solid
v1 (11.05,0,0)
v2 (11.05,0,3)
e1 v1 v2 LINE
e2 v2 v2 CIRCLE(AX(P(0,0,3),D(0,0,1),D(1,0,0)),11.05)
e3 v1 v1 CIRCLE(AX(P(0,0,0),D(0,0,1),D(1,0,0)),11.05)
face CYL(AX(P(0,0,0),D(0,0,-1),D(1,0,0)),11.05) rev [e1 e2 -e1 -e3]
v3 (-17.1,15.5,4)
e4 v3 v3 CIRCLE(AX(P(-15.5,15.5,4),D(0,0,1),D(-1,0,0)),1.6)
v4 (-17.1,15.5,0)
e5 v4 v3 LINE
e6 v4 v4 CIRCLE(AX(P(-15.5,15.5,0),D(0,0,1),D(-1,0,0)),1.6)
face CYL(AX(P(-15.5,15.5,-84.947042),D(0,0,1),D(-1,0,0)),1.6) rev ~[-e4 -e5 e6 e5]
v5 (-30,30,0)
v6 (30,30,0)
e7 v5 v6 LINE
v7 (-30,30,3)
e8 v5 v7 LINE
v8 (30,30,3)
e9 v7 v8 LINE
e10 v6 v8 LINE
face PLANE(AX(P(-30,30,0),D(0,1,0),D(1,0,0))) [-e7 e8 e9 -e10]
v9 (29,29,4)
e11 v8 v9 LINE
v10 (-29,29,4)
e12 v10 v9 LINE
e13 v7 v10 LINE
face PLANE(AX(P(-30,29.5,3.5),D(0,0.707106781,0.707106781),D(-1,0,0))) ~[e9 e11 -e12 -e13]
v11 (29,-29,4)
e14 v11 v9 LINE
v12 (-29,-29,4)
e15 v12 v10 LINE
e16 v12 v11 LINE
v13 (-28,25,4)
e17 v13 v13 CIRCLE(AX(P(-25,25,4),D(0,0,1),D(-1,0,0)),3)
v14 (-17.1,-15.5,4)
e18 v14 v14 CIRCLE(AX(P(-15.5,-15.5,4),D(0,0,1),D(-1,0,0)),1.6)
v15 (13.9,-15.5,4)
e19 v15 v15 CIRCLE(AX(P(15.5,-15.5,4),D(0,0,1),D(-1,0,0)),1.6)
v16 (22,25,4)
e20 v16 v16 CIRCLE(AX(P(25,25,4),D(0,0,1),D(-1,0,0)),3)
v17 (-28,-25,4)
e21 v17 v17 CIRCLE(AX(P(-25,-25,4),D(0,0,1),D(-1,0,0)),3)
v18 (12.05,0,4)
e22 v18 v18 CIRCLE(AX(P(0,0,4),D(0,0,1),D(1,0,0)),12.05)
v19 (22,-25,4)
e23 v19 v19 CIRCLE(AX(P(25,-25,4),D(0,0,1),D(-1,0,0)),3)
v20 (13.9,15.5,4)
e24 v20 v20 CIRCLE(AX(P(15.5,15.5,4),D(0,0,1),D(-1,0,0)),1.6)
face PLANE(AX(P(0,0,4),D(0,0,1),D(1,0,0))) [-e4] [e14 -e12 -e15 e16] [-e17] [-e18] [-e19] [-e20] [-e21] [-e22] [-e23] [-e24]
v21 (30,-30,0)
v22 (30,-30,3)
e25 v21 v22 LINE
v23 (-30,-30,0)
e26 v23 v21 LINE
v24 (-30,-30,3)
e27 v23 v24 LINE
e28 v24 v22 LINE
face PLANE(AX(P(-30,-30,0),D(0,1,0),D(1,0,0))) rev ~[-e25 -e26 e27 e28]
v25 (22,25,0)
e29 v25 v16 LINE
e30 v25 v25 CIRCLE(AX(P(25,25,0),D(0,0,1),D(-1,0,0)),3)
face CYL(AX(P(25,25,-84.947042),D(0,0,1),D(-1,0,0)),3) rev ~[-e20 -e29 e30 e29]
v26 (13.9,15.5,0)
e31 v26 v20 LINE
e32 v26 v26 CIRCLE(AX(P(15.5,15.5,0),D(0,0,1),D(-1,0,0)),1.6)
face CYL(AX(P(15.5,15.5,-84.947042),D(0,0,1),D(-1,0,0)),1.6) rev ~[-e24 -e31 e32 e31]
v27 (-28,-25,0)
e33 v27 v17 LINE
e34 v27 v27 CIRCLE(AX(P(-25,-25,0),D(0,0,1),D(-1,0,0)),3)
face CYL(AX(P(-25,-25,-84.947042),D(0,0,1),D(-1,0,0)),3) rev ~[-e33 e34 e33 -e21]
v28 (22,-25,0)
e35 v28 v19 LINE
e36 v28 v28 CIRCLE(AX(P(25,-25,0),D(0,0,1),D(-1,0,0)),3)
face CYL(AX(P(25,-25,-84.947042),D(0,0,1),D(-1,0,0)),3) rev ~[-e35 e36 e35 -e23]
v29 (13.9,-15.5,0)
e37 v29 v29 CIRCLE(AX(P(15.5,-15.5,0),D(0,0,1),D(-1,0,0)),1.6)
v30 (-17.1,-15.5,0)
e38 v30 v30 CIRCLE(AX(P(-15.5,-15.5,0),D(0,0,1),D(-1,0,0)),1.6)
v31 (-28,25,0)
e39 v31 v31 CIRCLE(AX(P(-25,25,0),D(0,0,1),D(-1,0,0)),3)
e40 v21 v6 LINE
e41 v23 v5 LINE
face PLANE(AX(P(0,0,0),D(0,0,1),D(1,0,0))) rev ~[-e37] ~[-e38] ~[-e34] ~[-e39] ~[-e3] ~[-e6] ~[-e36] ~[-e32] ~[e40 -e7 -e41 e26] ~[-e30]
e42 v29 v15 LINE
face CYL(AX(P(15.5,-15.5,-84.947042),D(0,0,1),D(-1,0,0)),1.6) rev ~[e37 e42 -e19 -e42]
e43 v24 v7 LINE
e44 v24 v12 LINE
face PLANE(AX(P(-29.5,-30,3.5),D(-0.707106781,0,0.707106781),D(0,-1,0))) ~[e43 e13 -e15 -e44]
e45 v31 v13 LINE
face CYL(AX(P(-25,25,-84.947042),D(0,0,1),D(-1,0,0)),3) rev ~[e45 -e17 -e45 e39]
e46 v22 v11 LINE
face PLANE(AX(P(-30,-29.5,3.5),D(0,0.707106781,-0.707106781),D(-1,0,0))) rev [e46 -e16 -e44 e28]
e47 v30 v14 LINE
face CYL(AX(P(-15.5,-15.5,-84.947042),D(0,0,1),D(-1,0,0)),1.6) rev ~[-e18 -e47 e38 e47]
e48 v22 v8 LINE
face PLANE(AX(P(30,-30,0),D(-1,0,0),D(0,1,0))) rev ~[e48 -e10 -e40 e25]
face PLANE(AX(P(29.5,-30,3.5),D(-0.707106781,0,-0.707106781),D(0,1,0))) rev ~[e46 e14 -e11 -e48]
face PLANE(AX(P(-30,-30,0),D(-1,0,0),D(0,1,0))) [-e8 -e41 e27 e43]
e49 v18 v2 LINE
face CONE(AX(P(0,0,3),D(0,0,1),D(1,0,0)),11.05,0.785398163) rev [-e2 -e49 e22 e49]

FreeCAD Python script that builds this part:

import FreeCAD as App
import Part
import Sketcher
Q = App.Units.Quantity


def edges_at(feature, points):
    """Names of the edges that pass closest to the given points."""
    edges = feature.Shape.Edges
    near = lambda p: min(range(len(edges)), key=lambda i: edges[i].distToShape(Part.Vertex(*p))[0])
    return sorted({f"Edge{near(p) + 1}" for p in points})

doc = App.newDocument("Part")
body = doc.addObject("PartDesign::Body", "Body")

# Sketch on XY plane
sketch1 = body.newObject("Sketcher::SketchObject", "Sketch")
sketch1.AttachmentSupport = (doc.getObject("XY_Plane"), [""])
sketch1.MapMode = "FlatFace"
sketch1.addGeometry([
    Part.LineSegment(App.Vector(-30, 30, 0), App.Vector(-30, -30, 0)),  # 0
    Part.LineSegment(App.Vector(-30, -30, 0), App.Vector(30, -30, 0)),  # 1
    Part.LineSegment(App.Vector(30, -30, 0), App.Vector(30, 30, 0)),  # 2
    Part.LineSegment(App.Vector(30, 30, 0), App.Vector(-30, 30, 0)),  # 3
    Part.Circle(App.Vector(0, 0, 0), App.Vector(0, 0, 1), 11),  # 4
], False)
sketch1.addConstraint([
    Sketcher.Constraint("Coincident", 0, 2, 1, 1),
    Sketcher.Constraint("Coincident", 1, 2, 2, 1),
    Sketcher.Constraint("Coincident", 2, 2, 3, 1),
    Sketcher.Constraint("Coincident", 3, 2, 0, 1),
    Sketcher.Constraint("Vertical", 0),
    Sketcher.Constraint("Horizontal", 1),
    Sketcher.Constraint("Vertical", 2),
    Sketcher.Constraint("Horizontal", 3),
    Sketcher.Constraint("Coincident", 4, 3, -1, 1),
    Sketcher.Constraint("Symmetric", 0, 2, 2, 2, -1, 1),
    Sketcher.Constraint("Equal", 3, 0),
    Sketcher.Constraint("Diameter", 4, Q("22.1 mm")),
    Sketcher.Constraint("DistanceX", 1, 1, 1, 2, Q("60 mm")),
])
pad1 = body.newObject("PartDesign::Pad", "Pad")
pad1.Profile = sketch1
pad1.Length = 4

# Sketch on XY plane
sketch2 = body.newObject("Sketcher::SketchObject", "Sketch001")
sketch2.AttachmentSupport = (doc.getObject("XY_Plane"), [""])
sketch2.MapMode = "FlatFace"
sketch2.addGeometry([
    Part.Circle(App.Vector(15.5, -15.5, 0), App.Vector(0, 0, 1), 1.6),
    Part.Circle(App.Vector(15.5, 15.5, 0), App.Vector(0, 0, 1), 1.6),
    Part.Circle(App.Vector(-15.5, 15.5, 0), App.Vector(0, 0, 1), 1.6),
    Part.Circle(App.Vector(-15.5, -15.5, 0), App.Vector(0, 0, 1), 1.6),
], False)
sketch2.addConstraint([
    Sketcher.Constraint("Equal", 0, 1),
    Sketcher.Constraint("Equal", 1, 2),
    Sketcher.Constraint("Equal", 2, 3),
    Sketcher.Constraint("Symmetric", 0, 3, 2, 3, -1, 1),
    Sketcher.Constraint("Symmetric", 1, 3, 3, 3, -1, 1),
    Sketcher.Constraint("Symmetric", 1, 3, 2, 3, -2),
    Sketcher.Constraint("Diameter", 0, Q("3.2 mm")),
    Sketcher.Constraint("DistanceY", 0, 3, 1, 3, Q("31 mm")),
    Sketcher.Constraint("DistanceX", 2, 3, 1, 3, Q("31 mm")),
])
doc.recompute()
hole = body.newObject("PartDesign::Hole", "Hole")
hole.Profile = sketch2
hole.ThreadType = "None"
hole.Diameter = 3.2
hole.DepthType = "ThroughAll"
hole.Reversed = True

# Sketch on XY plane
sketch3 = body.newObject("Sketcher::SketchObject", "Sketch002")
sketch3.AttachmentSupport = (doc.getObject("XY_Plane"), [""])
sketch3.MapMode = "FlatFace"
sketch3.addGeometry([
    Part.Circle(App.Vector(-25, 25, 0), App.Vector(0, 0, 1), 3),
    Part.Circle(App.Vector(25, 25, 0), App.Vector(0, 0, 1), 3),
    Part.Circle(App.Vector(25, -25, 0), App.Vector(0, 0, 1), 3),
    Part.Circle(App.Vector(-25, -25, 0), App.Vector(0, 0, 1), 3),
], False)
sketch3.addConstraint([
    Sketcher.Constraint("Equal", 0, 1),
    Sketcher.Constraint("Equal", 1, 2),
    Sketcher.Constraint("Equal", 2, 3),
    Sketcher.Constraint("Symmetric", 0, 3, 2, 3, -1, 1),
    Sketcher.Constraint("Symmetric", 1, 3, 3, 3, -1, 1),
    Sketcher.Constraint("Symmetric", 0, 3, 1, 3, -2),
    Sketcher.Constraint("Diameter", 0, Q("6 mm")),
    Sketcher.Constraint("DistanceX", 0, 3, -1, 1, Q("25 mm")),
    Sketcher.Constraint("DistanceY", -1, 1, 0, 3, Q("25 mm")),
])
doc.recompute()
hole2 = body.newObject("PartDesign::Hole", "Hole001")
hole2.Profile = sketch3
hole2.ThreadType = "None"
hole2.Diameter = 6
hole2.DepthType = "ThroughAll"
hole2.Reversed = True
doc.recompute()

chamfer = body.newObject("PartDesign::Chamfer", "Chamfer")
chamfer.Base = (hole2, edges_at(hole2, [
    (-11.05, 0, 4),
    (0, -30, 4),
    (-30, 0, 4),
    (0, 30, 4),
    (30, 0, 4),
]))
chamfer.Size = 1

doc.recompute()
